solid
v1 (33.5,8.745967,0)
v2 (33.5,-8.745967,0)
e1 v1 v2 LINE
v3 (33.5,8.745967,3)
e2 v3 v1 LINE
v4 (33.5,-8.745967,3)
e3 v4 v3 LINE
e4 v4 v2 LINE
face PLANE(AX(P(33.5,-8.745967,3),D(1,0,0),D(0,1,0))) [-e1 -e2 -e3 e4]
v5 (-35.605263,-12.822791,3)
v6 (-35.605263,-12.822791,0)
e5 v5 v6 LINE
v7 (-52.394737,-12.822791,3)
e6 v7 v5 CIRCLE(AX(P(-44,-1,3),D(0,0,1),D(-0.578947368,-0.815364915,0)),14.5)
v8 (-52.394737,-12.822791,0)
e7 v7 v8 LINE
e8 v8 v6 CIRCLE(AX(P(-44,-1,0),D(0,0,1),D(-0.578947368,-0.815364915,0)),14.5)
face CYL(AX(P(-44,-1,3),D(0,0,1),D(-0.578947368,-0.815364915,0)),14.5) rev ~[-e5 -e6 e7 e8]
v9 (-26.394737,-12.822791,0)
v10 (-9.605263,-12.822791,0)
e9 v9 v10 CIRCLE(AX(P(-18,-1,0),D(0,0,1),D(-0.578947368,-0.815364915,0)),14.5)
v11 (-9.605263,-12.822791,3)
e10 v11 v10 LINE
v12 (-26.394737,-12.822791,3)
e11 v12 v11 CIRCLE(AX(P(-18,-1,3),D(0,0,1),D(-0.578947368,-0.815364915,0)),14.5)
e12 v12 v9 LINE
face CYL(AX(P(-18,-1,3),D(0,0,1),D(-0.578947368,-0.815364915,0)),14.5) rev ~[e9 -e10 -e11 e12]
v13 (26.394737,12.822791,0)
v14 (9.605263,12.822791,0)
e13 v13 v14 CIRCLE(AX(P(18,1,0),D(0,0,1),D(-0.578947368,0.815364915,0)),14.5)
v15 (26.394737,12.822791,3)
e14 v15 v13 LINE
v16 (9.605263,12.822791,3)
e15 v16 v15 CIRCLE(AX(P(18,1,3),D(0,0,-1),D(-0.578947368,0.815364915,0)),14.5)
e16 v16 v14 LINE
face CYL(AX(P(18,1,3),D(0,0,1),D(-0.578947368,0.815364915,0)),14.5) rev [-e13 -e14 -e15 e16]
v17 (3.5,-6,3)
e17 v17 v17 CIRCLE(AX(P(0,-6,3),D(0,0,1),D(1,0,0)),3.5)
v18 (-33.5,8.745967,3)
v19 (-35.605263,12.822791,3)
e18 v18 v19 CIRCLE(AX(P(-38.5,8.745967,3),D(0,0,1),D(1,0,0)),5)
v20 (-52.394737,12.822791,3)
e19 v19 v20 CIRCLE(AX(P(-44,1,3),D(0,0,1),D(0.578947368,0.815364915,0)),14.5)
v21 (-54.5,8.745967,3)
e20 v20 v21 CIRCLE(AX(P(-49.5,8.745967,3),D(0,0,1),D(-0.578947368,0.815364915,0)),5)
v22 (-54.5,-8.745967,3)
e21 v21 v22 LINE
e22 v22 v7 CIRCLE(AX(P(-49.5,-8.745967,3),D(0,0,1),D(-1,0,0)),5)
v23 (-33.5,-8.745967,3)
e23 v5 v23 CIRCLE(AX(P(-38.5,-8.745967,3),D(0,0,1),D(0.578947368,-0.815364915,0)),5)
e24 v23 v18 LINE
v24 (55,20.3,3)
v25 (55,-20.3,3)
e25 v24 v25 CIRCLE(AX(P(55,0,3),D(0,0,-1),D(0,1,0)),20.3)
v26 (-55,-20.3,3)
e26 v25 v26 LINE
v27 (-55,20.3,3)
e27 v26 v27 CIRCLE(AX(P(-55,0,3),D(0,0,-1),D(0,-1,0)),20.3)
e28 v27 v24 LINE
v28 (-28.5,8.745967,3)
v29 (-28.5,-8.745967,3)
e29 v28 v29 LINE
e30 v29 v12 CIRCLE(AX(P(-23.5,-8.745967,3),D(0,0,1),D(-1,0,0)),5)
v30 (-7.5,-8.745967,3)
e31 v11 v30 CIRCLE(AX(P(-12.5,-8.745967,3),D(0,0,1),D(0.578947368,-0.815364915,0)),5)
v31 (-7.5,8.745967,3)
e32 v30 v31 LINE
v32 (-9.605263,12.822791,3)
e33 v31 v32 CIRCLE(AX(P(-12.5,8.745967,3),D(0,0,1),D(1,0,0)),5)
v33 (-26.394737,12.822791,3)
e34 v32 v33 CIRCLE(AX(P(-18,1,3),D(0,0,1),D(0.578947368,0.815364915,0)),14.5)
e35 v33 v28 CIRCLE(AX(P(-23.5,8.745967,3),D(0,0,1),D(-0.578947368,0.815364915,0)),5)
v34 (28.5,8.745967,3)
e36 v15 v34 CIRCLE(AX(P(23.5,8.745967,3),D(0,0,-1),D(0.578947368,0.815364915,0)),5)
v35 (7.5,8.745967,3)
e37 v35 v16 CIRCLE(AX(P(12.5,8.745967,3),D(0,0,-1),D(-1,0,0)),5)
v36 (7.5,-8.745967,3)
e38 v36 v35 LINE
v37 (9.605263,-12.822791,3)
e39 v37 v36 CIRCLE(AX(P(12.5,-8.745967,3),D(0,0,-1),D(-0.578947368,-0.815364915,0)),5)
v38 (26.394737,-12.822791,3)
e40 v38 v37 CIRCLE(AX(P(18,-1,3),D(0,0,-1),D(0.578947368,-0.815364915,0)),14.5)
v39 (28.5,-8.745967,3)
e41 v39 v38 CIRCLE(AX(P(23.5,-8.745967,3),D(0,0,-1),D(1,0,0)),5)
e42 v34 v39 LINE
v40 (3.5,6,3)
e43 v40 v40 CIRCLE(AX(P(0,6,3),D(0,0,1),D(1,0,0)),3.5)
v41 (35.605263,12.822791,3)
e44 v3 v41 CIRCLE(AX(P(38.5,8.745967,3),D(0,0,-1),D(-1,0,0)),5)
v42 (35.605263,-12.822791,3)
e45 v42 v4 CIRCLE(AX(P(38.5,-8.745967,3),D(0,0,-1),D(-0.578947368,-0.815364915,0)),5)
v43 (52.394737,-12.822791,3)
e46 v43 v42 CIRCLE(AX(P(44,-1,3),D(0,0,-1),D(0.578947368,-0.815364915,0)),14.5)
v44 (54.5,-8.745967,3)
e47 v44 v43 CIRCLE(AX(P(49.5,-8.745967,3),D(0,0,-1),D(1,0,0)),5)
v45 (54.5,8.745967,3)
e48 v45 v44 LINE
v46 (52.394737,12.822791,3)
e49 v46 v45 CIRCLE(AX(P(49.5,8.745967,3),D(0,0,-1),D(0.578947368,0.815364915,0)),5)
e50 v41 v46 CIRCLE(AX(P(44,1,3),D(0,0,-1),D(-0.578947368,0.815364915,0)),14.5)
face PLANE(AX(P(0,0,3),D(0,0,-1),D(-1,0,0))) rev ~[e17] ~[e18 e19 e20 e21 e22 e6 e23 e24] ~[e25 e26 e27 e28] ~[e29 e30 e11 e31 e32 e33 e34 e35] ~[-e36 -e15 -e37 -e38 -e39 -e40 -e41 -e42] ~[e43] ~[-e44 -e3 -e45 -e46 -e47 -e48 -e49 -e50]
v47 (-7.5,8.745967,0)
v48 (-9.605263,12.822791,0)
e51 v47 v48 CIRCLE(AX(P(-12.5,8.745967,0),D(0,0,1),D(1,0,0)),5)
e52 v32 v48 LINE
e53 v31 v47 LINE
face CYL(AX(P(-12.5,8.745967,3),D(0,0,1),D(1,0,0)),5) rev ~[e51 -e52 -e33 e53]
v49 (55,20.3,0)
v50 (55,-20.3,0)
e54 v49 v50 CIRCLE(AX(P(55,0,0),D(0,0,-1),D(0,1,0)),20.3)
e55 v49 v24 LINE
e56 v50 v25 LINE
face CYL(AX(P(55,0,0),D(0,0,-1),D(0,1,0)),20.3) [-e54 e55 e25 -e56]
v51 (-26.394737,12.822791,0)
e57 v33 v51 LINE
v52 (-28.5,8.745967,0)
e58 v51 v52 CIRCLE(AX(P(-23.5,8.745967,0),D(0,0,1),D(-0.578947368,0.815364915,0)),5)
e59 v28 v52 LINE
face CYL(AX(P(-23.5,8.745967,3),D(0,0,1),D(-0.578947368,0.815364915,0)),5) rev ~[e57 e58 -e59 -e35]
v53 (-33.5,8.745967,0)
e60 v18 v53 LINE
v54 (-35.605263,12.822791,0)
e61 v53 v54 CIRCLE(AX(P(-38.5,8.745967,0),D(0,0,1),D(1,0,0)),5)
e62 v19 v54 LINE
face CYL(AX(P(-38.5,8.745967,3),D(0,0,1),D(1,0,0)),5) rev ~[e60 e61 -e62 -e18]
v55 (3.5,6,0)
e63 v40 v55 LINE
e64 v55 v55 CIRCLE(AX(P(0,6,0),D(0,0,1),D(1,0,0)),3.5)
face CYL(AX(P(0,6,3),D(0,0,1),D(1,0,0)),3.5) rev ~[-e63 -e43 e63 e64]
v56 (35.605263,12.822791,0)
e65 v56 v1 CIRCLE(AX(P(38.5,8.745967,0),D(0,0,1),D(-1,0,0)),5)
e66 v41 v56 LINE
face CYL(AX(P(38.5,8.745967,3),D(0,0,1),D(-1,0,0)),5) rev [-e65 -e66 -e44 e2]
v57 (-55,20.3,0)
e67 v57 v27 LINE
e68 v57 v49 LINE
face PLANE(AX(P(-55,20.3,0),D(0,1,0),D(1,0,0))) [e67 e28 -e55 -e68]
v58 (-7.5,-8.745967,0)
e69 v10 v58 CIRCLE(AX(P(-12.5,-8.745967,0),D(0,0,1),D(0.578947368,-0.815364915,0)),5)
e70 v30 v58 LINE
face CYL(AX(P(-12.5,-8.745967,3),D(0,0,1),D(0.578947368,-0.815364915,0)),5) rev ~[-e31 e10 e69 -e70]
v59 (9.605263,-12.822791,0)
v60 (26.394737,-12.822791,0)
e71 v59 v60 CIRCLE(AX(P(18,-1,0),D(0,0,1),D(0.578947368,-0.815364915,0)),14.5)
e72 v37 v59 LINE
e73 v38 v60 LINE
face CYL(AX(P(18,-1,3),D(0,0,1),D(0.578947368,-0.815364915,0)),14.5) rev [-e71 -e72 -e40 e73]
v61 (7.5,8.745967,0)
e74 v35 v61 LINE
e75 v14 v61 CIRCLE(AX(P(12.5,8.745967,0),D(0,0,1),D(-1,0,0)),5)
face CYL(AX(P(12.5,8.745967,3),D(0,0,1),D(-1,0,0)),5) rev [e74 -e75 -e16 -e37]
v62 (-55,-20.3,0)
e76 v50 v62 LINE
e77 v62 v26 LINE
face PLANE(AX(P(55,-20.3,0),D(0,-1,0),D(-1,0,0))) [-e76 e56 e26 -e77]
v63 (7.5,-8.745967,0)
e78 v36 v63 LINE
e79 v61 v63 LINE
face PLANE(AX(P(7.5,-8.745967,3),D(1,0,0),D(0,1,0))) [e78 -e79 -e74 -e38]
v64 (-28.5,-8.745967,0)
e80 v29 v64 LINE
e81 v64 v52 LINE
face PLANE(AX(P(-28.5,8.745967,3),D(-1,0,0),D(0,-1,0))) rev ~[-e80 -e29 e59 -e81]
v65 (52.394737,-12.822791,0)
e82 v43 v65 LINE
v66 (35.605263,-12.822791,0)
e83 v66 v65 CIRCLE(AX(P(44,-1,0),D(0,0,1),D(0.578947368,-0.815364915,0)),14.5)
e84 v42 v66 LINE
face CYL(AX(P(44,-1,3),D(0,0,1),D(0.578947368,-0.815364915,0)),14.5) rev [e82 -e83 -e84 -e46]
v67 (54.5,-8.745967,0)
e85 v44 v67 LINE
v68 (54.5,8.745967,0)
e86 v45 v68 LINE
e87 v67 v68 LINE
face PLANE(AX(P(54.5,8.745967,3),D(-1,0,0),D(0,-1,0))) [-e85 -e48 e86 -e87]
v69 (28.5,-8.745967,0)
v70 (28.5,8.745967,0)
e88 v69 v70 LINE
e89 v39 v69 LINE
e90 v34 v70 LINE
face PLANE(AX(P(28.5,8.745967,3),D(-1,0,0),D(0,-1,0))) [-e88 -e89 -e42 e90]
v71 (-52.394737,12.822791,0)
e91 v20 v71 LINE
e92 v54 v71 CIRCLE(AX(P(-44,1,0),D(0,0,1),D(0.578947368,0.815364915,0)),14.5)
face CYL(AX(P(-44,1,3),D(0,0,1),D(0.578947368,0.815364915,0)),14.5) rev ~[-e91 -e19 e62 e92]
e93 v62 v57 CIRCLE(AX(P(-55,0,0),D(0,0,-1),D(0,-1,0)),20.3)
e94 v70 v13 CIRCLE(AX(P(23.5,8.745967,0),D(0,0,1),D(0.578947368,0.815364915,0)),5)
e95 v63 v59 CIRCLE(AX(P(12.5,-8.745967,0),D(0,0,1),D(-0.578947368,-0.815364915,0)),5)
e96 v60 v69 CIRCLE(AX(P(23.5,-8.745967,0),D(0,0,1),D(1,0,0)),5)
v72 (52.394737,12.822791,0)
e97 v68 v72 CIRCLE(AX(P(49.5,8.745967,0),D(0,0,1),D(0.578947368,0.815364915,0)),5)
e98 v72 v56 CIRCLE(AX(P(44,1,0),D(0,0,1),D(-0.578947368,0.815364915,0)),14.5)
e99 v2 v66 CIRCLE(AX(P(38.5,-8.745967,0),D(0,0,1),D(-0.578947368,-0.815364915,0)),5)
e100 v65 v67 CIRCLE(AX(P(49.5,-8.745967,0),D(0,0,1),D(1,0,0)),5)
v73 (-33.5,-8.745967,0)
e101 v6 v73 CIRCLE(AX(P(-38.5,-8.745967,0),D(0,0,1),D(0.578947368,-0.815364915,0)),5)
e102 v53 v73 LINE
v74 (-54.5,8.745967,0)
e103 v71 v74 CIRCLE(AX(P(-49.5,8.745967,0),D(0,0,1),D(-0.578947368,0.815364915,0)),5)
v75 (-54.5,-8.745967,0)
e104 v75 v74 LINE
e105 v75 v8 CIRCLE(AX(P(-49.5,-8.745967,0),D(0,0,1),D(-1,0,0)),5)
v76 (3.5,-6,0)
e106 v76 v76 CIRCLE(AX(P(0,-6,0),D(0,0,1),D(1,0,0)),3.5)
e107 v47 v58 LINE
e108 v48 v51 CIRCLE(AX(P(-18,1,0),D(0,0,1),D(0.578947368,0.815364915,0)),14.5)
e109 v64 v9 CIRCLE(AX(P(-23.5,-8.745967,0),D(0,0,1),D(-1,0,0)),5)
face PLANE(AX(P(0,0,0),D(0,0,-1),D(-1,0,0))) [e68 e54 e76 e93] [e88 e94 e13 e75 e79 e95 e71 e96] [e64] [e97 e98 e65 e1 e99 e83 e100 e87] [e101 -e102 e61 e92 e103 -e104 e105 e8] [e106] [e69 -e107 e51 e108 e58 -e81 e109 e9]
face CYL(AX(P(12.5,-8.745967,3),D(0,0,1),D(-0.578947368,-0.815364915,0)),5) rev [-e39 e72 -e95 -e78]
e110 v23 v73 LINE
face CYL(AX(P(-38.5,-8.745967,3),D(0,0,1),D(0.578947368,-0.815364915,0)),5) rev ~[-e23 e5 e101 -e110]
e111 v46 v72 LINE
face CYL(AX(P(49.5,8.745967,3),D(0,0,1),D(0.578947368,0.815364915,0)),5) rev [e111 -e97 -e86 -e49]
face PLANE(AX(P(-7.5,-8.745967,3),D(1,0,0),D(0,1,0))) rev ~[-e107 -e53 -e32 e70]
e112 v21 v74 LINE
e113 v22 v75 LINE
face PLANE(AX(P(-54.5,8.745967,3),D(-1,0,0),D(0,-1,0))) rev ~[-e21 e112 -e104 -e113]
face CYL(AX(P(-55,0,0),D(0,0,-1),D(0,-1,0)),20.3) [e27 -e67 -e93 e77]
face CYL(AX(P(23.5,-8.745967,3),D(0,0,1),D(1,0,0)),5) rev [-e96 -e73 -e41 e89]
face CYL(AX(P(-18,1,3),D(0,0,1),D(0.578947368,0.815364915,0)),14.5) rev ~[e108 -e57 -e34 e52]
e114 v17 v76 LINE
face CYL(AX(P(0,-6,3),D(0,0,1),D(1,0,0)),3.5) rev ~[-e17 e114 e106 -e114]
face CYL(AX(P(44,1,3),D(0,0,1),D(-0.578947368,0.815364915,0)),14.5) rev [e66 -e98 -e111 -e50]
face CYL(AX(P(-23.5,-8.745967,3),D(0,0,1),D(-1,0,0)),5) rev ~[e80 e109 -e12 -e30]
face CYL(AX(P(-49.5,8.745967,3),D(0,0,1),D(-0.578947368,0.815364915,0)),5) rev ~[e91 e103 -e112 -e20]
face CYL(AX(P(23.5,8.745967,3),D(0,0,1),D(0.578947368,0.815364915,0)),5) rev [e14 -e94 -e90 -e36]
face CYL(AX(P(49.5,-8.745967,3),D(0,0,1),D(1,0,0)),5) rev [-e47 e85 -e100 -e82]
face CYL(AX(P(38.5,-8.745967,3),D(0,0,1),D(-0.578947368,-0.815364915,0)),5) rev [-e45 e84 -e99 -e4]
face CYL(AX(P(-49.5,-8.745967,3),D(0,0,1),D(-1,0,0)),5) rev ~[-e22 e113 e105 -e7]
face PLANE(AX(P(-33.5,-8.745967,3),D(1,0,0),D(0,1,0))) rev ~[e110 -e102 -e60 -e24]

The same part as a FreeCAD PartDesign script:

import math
import FreeCAD as App
import Part
import Sketcher

doc = App.newDocument("Part")
body = doc.addObject("PartDesign::Body", "Body")

# Sketch on XY plane
sketch1 = body.newObject("Sketcher::SketchObject", "Sketch")
sketch1.AttachmentSupport = (doc.getObject("XY_Plane"), [""])
sketch1.MapMode = "FlatFace"
sketch1.addGeometry([
    Part.LineSegment(App.Vector(55, 20, 0), App.Vector(-55, 20, 0)),
    Part.ArcOfCircle(Part.Circle(App.Vector(-55, 0, 0), App.Vector(0, 0, 1), 20), math.radians(90), math.radians(270)),
    Part.LineSegment(App.Vector(-55, -20, 0), App.Vector(55, -20, 0)),
    Part.ArcOfCircle(Part.Circle(App.Vector(55, 0, 0), App.Vector(0, 0, 1), 20), math.radians(-90), math.radians(90)),
], False)
sketch1.addConstraint([
    Sketcher.Constraint("Tangent", 0, 2, 1, 1),
    Sketcher.Constraint("Tangent", 1, 2, 2, 1),
    Sketcher.Constraint("Tangent", 2, 2, 3, 1),
    Sketcher.Constraint("Tangent", 3, 2, 0, 1),
    Sketcher.Constraint("Horizontal", 0),
    Sketcher.Constraint("Horizontal", 2),
    Sketcher.Constraint("Symmetric", 1, 3, 3, 3, -1, 1),
    Sketcher.Constraint("Radius", 1, 20.3),
    Sketcher.Constraint("DistanceX", 0, 2, 0, 1, 110.0),
])
pad1 = body.newObject("PartDesign::Pad", "Pad")
pad1.Profile = sketch1
pad1.Length = 3

# Sketch on XY plane
sketch2 = body.newObject("Sketcher::SketchObject", "Sketch001")
sketch2.AttachmentSupport = (doc.getObject("XY_Plane"), [""])
sketch2.MapMode = "FlatFace"
sketch2.AttachmentOffset = App.Placement(App.Vector(0, 0, 3), App.Rotation())
sketch2.addGeometry([
    Part.Circle(App.Vector(0, 6, 0), App.Vector(0, 0, 1), 3.5),  # 0
    Part.Circle(App.Vector(0, -6, 0), App.Vector(0, 0, 1), 3.5),  # 1
    Part.LineSegment(App.Vector(-7.5, -8.7, 0), App.Vector(-7.5, 8.7, 0)),  # 2
    Part.ArcOfCircle(Part.Circle(App.Vector(-12.5, 8.7, 0), App.Vector(0, 0, 1), 5), math.radians(0), math.radians(55)),  # 3
    Part.ArcOfCircle(Part.Circle(App.Vector(-18, 1, 0), App.Vector(0, 0, 1), 14.5), math.radians(55), math.radians(125)),  # 4
    Part.ArcOfCircle(Part.Circle(App.Vector(-23.5, 8.7, 0), App.Vector(0, 0, 1), 5), math.radians(125), math.radians(180)),  # 5
    Part.LineSegment(App.Vector(-28.5, 8.7, 0), App.Vector(-28.5, -8.7, 0)),  # 6
    Part.ArcOfCircle(Part.Circle(App.Vector(-23.5, -8.7, 0), App.Vector(0, 0, 1), 5), math.radians(180), math.radians(235)),  # 7
    Part.ArcOfCircle(Part.Circle(App.Vector(-18, -1, 0), App.Vector(0, 0, 1), 14.5), math.radians(-125), math.radians(-55)),  # 8
    Part.ArcOfCircle(Part.Circle(App.Vector(-12.5, -8.7, 0), App.Vector(0, 0, 1), 5), math.radians(-55), math.radians(0)),  # 9
    Part.LineSegment(App.Vector(-33.5, -8.7, 0), App.Vector(-33.5, 8.7, 0)),  # 10
    Part.ArcOfCircle(Part.Circle(App.Vector(-38.5, 8.7, 0), App.Vector(0, 0, 1), 5), math.radians(0), math.radians(55)),  # 11
    Part.ArcOfCircle(Part.Circle(App.Vector(-44, 1, 0), App.Vector(0, 0, 1), 14.5), math.radians(55), math.radians(125)),  # 12
    Part.ArcOfCircle(Part.Circle(App.Vector(-49.5, 8.7, 0), App.Vector(0, 0, 1), 5), math.radians(125), math.radians(180)),  # 13
    Part.LineSegment(App.Vector(-54.5, 8.7, 0), App.Vector(-54.5, -8.7, 0)),  # 14
    Part.ArcOfCircle(Part.Circle(App.Vector(-49.5, -8.7, 0), App.Vector(0, 0, 1), 5), math.radians(180), math.radians(235)),  # 15
    Part.ArcOfCircle(Part.Circle(App.Vector(-44, -1, 0), App.Vector(0, 0, 1), 14.5), math.radians(-125), math.radians(-55)),  # 16
    Part.ArcOfCircle(Part.Circle(App.Vector(-38.5, -8.7, 0), App.Vector(0, 0, 1), 5), math.radians(-55), math.radians(0)),  # 17
    Part.LineSegment(App.Vector(28.5, -8.7, 0), App.Vector(28.5, 8.7, 0)),  # 18
    Part.ArcOfCircle(Part.Circle(App.Vector(23.5, 8.7, 0), App.Vector(0, 0, 1), 5), math.radians(0), math.radians(55)),  # 19
    Part.ArcOfCircle(Part.Circle(App.Vector(18, 1, 0), App.Vector(0, 0, 1), 14.5), math.radians(55), math.radians(125)),  # 20
    Part.ArcOfCircle(Part.Circle(App.Vector(12.5, 8.7, 0), App.Vector(0, 0, 1), 5), math.radians(125), math.radians(180)),  # 21
    Part.LineSegment(App.Vector(7.5, 8.7, 0), App.Vector(7.5, -8.7, 0)),  # 22
    Part.ArcOfCircle(Part.Circle(App.Vector(12.5, -8.7, 0), App.Vector(0, 0, 1), 5), math.radians(180), math.radians(235)),  # 23
    Part.ArcOfCircle(Part.Circle(App.Vector(18, -1, 0), App.Vector(0, 0, 1), 14.5), math.radians(-125), math.radians(-55)),  # 24
    Part.ArcOfCircle(Part.Circle(App.Vector(23.5, -8.7, 0), App.Vector(0, 0, 1), 5), math.radians(-55), math.radians(0)),  # 25
    Part.LineSegment(App.Vector(54.5, -8.7, 0), App.Vector(54.5, 8.7, 0)),  # 26
    Part.ArcOfCircle(Part.Circle(App.Vector(49.5, 8.7, 0), App.Vector(0, 0, 1), 5), math.radians(0), math.radians(55)),  # 27
    Part.ArcOfCircle(Part.Circle(App.Vector(44, 1, 0), App.Vector(0, 0, 1), 14.5), math.radians(55), math.radians(125)),  # 28
    Part.ArcOfCircle(Part.Circle(App.Vector(38.5, 8.7, 0), App.Vector(0, 0, 1), 5), math.radians(125), math.radians(180)),  # 29
    Part.LineSegment(App.Vector(33.5, 8.7, 0), App.Vector(33.5, -8.7, 0)),  # 30
    Part.ArcOfCircle(Part.Circle(App.Vector(38.5, -8.7, 0), App.Vector(0, 0, 1), 5), math.radians(180), math.radians(235)),  # 31
    Part.ArcOfCircle(Part.Circle(App.Vector(44, -1, 0), App.Vector(0, 0, 1), 14.5), math.radians(-125), math.radians(-55)),  # 32
    Part.ArcOfCircle(Part.Circle(App.Vector(49.5, -8.7, 0), App.Vector(0, 0, 1), 5), math.radians(-55), math.radians(0)),  # 33
], False)
sketch2.addConstraint([
    Sketcher.Constraint("Tangent", 2, 2, 3, 1),
    Sketcher.Constraint("Tangent", 3, 2, 4, 1),
    Sketcher.Constraint("Tangent", 4, 2, 5, 1),
    Sketcher.Constraint("Tangent", 5, 2, 6, 1),
    Sketcher.Constraint("Tangent", 6, 2, 7, 1),
    Sketcher.Constraint("Tangent", 7, 2, 8, 1),
    Sketcher.Constraint("Tangent", 8, 2, 9, 1),
    Sketcher.Constraint("Tangent", 9, 2, 2, 1),
    Sketcher.Constraint("Tangent", 10, 2, 11, 1),
    Sketcher.Constraint("Tangent", 11, 2, 12, 1),
    Sketcher.Constraint("Tangent", 12, 2, 13, 1),
    Sketcher.Constraint("Tangent", 13, 2, 14, 1),
    Sketcher.Constraint("Tangent", 14, 2, 15, 1),
    Sketcher.Constraint("Tangent", 15, 2, 16, 1),
    Sketcher.Constraint("Tangent", 16, 2, 17, 1),
    Sketcher.Constraint("Tangent", 17, 2, 10, 1),
    Sketcher.Constraint("Tangent", 18, 2, 19, 1),
    Sketcher.Constraint("Tangent", 19, 2, 20, 1),
    Sketcher.Constraint("Tangent", 20, 2, 21, 1),
    Sketcher.Constraint("Tangent", 21, 2, 22, 1),
    Sketcher.Constraint("Tangent", 22, 2, 23, 1),
    Sketcher.Constraint("Tangent", 23, 2, 24, 1),
    Sketcher.Constraint("Tangent", 24, 2, 25, 1),
    Sketcher.Constraint("Tangent", 25, 2, 18, 1),
    Sketcher.Constraint("Tangent", 26, 2, 27, 1),
    Sketcher.Constraint("Tangent", 27, 2, 28, 1),
    Sketcher.Constraint("Tangent", 28, 2, 29, 1),
    Sketcher.Constraint("Tangent", 29, 2, 30, 1),
    Sketcher.Constraint("Tangent", 30, 2, 31, 1),
    Sketcher.Constraint("Tangent", 31, 2, 32, 1),
    Sketcher.Constraint("Tangent", 32, 2, 33, 1),
    Sketcher.Constraint("Tangent", 33, 2, 26, 1),
    Sketcher.Constraint("Vertical", 2),
    Sketcher.Constraint("Vertical", 6),
    Sketcher.Constraint("Vertical", 10),
    Sketcher.Constraint("Vertical", 14),
    Sketcher.Constraint("Vertical", 18),
    Sketcher.Constraint("Vertical", 22),
    Sketcher.Constraint("Vertical", 26),
    Sketcher.Constraint("Vertical", 30),
    Sketcher.Constraint("Equal", 0, 1),
    Sketcher.Constraint("Equal", 3, 5),
    Sketcher.Constraint("Equal", 5, 7),
    Sketcher.Constraint("Equal", 4, 8),
    Sketcher.Constraint("Equal", 7, 9),
    Sketcher.Constraint("Equal", 9, 11),
    Sketcher.Constraint("Equal", 8, 12),
    Sketcher.Constraint("Equal", 11, 13),
    Sketcher.Constraint("Equal", 13, 15),
    Sketcher.Constraint("Equal", 12, 16),
    Sketcher.Constraint("Equal", 15, 17),
    Sketcher.Constraint("Equal", 17, 19),
    Sketcher.Constraint("Equal", 16, 20),
    Sketcher.Constraint("Equal", 19, 21),
    Sketcher.Constraint("Equal", 21, 23),
    Sketcher.Constraint("Equal", 20, 24),
    Sketcher.Constraint("Equal", 23, 25),
    Sketcher.Constraint("Equal", 25, 27),
    Sketcher.Constraint("Equal", 24, 28),
    Sketcher.Constraint("Equal", 27, 29),
    Sketcher.Constraint("Equal", 29, 31),
    Sketcher.Constraint("Equal", 28, 32),
    Sketcher.Constraint("Equal", 31, 33),
    Sketcher.Constraint("Symmetric", 0, 3, 1, 3, -1, 1),
    Sketcher.Constraint("Symmetric", 7, 3, 19, 3, -1, 1),
    Sketcher.Constraint("Symmetric", 9, 3, 21, 3, -1, 1),
    Sketcher.Constraint("Symmetric", 4, 3, 24, 3, -1, 1),
    Sketcher.Constraint("Symmetric", 15, 3, 27, 3, -1, 1),
    Sketcher.Constraint("Symmetric", 17, 3, 29, 3, -1, 1),
    Sketcher.Constraint("Symmetric", 12, 3, 32, 3, -1, 1),
    Sketcher.Constraint("Symmetric", 4, 3, 20, 3, -2),
    Sketcher.Constraint("Symmetric", 12, 3, 28, 3, -2),
    Sketcher.Constraint("PointOnObject", 0, 3, -2),
    Sketcher.Constraint("Horizontal", 3, 3, 5, 3),
    Sketcher.Constraint("Horizontal", 5, 3, 11, 3),
    Sketcher.Constraint("Horizontal", 4, 3, 12, 3),
    Sketcher.Constraint("Horizontal", 11, 3, 13, 3),
    Sketcher.Constraint("Diameter", 0, 7.0),
    Sketcher.Constraint("Radius", 3, 5.0),
    Sketcher.Constraint("Radius", 4, 14.5),
    Sketcher.Constraint("DistanceY", -1, 1, 0, 3, 6.0),
    Sketcher.Constraint("DistanceX", 4, 3, -1, 1, 18.0),
    Sketcher.Constraint("DistanceY", -1, 1, 4, 3, 1.0),
    Sketcher.Constraint("DistanceX", 12, 3, -1, 1, 44.0),
    Sketcher.Constraint("DistanceX", 5, 3, 3, 3, 11.0),
])
pocket1 = body.newObject("PartDesign::Pocket", "Pocket")
pocket1.Profile = sketch2
pocket1.Type = "ThroughAll"

doc.recompute()
